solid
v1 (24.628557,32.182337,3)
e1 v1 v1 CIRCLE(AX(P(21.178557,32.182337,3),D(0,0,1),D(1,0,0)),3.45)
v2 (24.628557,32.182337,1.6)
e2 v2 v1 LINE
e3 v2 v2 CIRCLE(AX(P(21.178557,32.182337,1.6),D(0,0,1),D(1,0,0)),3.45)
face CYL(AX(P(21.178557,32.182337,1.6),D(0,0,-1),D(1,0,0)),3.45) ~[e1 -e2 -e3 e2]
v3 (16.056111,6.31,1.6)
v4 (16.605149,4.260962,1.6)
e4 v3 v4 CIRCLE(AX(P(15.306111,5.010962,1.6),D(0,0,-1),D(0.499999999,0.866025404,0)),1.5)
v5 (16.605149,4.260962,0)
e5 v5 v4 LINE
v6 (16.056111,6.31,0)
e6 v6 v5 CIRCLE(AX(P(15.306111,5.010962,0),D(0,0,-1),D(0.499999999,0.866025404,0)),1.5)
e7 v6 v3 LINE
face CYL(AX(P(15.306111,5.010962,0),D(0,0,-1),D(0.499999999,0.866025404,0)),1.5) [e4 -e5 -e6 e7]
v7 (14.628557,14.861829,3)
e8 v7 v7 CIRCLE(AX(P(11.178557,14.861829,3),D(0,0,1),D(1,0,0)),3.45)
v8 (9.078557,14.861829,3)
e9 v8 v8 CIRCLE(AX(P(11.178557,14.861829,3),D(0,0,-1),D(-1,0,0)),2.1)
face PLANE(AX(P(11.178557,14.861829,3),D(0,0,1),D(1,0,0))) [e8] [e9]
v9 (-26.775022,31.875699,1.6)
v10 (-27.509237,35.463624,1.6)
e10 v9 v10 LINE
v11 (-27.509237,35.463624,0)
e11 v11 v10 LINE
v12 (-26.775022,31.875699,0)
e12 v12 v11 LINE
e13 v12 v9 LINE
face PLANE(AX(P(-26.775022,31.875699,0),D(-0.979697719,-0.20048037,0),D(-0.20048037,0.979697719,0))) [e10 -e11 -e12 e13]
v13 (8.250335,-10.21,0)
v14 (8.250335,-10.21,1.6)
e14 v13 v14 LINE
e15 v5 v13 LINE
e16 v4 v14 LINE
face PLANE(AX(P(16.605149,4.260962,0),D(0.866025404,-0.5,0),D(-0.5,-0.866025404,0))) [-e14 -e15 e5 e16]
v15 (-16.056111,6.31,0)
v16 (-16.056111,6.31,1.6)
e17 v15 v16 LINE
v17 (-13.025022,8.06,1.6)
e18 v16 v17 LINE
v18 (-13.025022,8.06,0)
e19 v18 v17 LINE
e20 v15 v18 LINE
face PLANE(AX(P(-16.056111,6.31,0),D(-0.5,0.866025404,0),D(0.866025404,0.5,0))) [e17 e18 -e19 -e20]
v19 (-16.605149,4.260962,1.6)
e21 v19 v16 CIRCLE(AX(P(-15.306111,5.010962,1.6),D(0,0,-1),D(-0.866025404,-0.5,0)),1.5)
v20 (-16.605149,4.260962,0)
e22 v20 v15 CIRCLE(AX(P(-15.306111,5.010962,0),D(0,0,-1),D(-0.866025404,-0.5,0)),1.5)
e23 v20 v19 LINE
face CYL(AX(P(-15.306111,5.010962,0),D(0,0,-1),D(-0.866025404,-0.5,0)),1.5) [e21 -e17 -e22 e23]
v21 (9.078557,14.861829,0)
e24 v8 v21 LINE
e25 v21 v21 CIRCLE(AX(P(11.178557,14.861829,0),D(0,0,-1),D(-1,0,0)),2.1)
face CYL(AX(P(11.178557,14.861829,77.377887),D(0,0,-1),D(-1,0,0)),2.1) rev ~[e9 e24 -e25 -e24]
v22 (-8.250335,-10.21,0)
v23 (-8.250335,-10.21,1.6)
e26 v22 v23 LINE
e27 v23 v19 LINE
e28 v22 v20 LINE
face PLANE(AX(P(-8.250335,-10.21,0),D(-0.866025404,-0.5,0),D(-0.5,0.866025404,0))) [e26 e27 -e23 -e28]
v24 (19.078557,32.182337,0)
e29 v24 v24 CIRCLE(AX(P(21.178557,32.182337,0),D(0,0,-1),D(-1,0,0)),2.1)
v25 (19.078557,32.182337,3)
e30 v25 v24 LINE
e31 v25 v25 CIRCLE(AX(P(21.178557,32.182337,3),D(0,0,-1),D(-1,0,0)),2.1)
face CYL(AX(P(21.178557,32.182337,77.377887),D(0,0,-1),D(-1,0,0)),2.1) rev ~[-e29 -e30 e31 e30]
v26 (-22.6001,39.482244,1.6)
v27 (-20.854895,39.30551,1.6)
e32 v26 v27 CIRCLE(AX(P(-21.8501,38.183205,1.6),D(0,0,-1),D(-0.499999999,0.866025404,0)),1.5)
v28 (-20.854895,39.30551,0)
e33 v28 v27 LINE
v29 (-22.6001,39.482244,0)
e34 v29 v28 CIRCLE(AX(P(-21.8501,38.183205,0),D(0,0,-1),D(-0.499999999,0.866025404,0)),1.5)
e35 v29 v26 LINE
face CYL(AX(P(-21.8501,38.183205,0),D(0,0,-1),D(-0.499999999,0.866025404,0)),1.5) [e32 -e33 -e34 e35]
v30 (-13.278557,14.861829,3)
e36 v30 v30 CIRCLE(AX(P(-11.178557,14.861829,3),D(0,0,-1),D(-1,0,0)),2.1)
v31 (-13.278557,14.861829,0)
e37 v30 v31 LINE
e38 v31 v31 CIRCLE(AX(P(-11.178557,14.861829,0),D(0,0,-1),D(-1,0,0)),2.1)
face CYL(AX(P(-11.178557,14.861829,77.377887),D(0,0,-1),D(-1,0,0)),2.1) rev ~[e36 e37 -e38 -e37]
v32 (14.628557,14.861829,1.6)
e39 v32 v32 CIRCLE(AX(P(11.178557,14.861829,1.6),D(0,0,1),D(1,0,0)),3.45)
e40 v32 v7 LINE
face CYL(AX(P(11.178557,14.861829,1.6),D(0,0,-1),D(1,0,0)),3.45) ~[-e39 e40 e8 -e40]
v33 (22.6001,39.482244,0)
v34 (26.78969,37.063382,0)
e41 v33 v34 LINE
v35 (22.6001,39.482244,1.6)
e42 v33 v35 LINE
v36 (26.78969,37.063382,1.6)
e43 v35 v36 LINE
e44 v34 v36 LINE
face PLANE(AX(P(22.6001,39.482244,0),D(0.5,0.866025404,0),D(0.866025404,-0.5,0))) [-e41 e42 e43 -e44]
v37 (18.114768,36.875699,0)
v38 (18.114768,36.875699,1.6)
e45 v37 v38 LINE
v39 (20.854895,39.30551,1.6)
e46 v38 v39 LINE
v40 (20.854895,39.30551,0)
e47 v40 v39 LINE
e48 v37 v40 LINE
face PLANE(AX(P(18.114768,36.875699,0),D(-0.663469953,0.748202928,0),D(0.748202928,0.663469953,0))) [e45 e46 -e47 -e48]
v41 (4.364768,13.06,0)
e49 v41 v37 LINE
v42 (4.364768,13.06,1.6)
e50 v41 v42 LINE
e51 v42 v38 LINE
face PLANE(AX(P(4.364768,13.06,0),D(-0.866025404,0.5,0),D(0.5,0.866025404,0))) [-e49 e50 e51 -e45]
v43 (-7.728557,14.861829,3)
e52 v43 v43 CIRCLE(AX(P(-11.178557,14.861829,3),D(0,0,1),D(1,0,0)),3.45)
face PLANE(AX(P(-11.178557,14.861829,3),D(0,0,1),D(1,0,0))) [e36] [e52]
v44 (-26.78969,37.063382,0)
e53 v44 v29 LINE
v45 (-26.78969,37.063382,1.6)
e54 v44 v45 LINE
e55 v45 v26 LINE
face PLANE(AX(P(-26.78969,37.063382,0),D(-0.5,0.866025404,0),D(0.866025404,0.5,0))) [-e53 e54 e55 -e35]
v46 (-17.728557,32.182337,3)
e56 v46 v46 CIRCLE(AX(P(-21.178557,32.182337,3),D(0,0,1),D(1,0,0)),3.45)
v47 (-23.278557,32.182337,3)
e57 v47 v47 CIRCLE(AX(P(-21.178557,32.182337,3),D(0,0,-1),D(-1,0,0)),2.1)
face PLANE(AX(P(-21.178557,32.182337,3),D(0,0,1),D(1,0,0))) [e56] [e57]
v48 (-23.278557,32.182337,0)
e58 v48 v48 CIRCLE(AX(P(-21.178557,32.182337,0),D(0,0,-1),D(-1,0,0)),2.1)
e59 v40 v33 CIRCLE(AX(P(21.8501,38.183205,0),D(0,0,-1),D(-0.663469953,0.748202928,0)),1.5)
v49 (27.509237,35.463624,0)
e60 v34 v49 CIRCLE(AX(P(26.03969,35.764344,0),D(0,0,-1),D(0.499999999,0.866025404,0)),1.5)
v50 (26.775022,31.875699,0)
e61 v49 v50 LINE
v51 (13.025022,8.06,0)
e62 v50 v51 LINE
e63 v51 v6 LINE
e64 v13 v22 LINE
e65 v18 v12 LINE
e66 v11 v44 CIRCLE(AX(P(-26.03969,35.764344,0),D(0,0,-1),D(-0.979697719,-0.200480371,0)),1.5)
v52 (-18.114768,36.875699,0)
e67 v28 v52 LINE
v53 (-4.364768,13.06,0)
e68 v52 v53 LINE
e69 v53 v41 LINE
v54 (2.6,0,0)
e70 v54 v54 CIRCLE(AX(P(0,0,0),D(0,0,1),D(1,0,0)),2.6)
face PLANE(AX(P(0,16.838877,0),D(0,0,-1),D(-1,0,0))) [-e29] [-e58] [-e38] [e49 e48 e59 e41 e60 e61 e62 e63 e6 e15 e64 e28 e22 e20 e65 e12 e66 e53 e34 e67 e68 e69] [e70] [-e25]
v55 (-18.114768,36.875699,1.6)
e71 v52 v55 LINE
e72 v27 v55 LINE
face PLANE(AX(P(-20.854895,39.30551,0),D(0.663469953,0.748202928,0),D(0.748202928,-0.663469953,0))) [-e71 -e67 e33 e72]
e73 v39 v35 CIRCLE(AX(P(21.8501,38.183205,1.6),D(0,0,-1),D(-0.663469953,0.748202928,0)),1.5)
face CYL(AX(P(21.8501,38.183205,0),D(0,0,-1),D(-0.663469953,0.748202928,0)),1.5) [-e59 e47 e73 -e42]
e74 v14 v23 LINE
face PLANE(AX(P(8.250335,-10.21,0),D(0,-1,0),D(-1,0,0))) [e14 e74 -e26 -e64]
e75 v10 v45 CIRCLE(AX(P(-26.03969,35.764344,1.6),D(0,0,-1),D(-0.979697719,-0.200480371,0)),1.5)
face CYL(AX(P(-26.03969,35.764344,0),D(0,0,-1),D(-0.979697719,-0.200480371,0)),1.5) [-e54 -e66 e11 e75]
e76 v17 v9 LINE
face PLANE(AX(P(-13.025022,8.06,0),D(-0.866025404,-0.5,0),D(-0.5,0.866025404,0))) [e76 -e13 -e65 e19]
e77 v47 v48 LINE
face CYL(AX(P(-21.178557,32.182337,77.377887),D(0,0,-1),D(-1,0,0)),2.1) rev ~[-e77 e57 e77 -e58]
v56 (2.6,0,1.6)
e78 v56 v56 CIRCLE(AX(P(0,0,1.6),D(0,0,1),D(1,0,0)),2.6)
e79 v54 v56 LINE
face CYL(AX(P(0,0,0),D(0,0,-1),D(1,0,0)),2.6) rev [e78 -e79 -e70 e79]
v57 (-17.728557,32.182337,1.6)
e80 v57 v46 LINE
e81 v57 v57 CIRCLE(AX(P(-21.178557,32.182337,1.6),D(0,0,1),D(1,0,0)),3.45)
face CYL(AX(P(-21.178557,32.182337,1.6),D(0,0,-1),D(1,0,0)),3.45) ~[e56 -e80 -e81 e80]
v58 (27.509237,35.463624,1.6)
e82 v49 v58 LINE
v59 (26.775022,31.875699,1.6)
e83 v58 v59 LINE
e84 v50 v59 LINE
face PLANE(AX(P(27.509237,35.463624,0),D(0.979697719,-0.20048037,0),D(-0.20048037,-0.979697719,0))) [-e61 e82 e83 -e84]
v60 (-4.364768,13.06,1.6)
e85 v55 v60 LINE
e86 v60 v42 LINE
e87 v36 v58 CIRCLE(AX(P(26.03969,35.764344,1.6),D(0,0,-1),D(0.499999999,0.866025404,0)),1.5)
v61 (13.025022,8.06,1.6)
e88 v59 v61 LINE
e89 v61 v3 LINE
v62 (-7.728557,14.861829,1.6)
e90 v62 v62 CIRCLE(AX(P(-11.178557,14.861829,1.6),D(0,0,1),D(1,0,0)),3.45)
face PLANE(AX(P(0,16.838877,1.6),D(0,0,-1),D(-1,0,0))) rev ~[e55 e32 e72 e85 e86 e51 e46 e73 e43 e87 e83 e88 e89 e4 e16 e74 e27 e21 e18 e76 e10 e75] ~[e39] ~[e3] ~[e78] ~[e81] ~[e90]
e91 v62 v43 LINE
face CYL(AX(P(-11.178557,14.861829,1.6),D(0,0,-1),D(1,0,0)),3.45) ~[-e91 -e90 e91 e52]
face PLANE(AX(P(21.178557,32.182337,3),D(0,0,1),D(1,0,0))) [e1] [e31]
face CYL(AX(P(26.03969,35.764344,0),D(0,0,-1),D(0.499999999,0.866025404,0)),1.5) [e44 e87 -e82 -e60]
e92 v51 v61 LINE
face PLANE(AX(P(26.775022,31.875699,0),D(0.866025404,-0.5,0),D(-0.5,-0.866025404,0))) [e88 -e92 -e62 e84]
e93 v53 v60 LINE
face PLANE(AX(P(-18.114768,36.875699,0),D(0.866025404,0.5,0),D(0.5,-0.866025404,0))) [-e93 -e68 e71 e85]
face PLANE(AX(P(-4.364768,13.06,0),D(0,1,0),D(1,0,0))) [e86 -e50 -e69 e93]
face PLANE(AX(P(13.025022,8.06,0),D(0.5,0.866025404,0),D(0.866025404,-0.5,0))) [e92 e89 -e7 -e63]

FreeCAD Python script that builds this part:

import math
import FreeCAD as App
import Part
import Sketcher

V = App.Vector
Q = App.Units.Quantity

doc = App.newDocument("Part")
body = doc.addObject("PartDesign::Body", "Body")

sketch1 = body.newObject("Sketcher::SketchObject", "Sketch")
sketch1.AttachmentSupport = (doc.getObject("XY_Plane"), [""])
sketch1.MapMode = "FlatFace"
sketch1.addGeometry([
    Part.LineSegment(V(4.4, 13.1, 0), V(-4.4, 13.1, 0)),
    Part.LineSegment(V(-4.4, 13.1, 0), V(-18.1, 36.9, 0)),
    Part.LineSegment(V(-18.1, 36.9, 0), V(-20.9, 39.3, 0)),
    Part.ArcOfCircle(Part.Circle(V(-21.9, 38.2, 0), V(0, 0, 1), 1.5), math.radians(48), math.radians(120)),
    Part.LineSegment(V(-22.6, 39.5, 0), V(-26.8, 37.1, 0)),
    Part.ArcOfCircle(Part.Circle(V(-26, 35.8, 0), V(0, 0, 1), 1.5), math.radians(120), math.radians(192)),
    Part.LineSegment(V(-27.5, 35.5, 0), V(-26.8, 31.9, 0)),
    Part.LineSegment(V(-26.8, 31.9, 0), V(-13, 8.1, 0)),
    Part.LineSegment(V(-13, 8.1, 0), V(-16.1, 6.3, 0)),
    Part.ArcOfCircle(Part.Circle(V(-15.3, 5, 0), V(0, 0, 1), 1.5), math.radians(120), math.radians(210)),
    Part.LineSegment(V(-16.6, 4.3, 0), V(-8.3, -10.2, 0)),
    Part.LineSegment(V(-8.3, -10.2, 0), V(8.3, -10.2, 0)),
    Part.LineSegment(V(8.3, -10.2, 0), V(16.6, 4.3, 0)),
    Part.ArcOfCircle(Part.Circle(V(15.3, 5, 0), V(0, 0, 1), 1.5), math.radians(-30), math.radians(60)),
    Part.LineSegment(V(16.1, 6.3, 0), V(13, 8.1, 0)),
    Part.LineSegment(V(13, 8.1, 0), V(26.8, 31.9, 0)),
    Part.LineSegment(V(26.8, 31.9, 0), V(27.5, 35.5, 0)),
    Part.ArcOfCircle(Part.Circle(V(26, 35.8, 0), V(0, 0, 1), 1.5), math.radians(-12), math.radians(60)),
    Part.LineSegment(V(26.8, 37.1, 0), V(22.6, 39.5, 0)),
    Part.ArcOfCircle(Part.Circle(V(21.9, 38.2, 0), V(0, 0, 1), 1.5), math.radians(60), math.radians(132)),
    Part.LineSegment(V(20.9, 39.3, 0), V(18.1, 36.9, 0)),
    Part.LineSegment(V(18.1, 36.9, 0), V(4.4, 13.1, 0)),
    Part.Circle(V(0, 0, 0), V(0, 0, 1), 2.6),
], False)
sketch1.addConstraint([
    Sketcher.Constraint("Coincident", 0, 2, 1, 1),
    Sketcher.Constraint("Coincident", 1, 2, 2, 1),
    Sketcher.Constraint("Tangent", 2, 2, 3, 1),
    Sketcher.Constraint("Tangent", 3, 2, 4, 1),
    Sketcher.Constraint("Tangent", 4, 2, 5, 1),
    Sketcher.Constraint("Tangent", 5, 2, 6, 1),
    Sketcher.Constraint("Coincident", 6, 2, 7, 1),
    Sketcher.Constraint("Coincident", 7, 2, 8, 1),
    Sketcher.Constraint("Tangent", 8, 2, 9, 1),
    Sketcher.Constraint("Tangent", 9, 2, 10, 1),
    Sketcher.Constraint("Coincident", 10, 2, 11, 1),
    Sketcher.Constraint("Coincident", 11, 2, 12, 1),
    Sketcher.Constraint("Tangent", 12, 2, 13, 1),
    Sketcher.Constraint("Tangent", 13, 2, 14, 1),
    Sketcher.Constraint("Coincident", 14, 2, 15, 1),
    Sketcher.Constraint("Coincident", 15, 2, 16, 1),
    Sketcher.Constraint("Tangent", 16, 2, 17, 1),
    Sketcher.Constraint("Tangent", 17, 2, 18, 1),
    Sketcher.Constraint("Tangent", 18, 2, 19, 1),
    Sketcher.Constraint("Tangent", 19, 2, 20, 1),
    Sketcher.Constraint("Coincident", 20, 2, 21, 1),
    Sketcher.Constraint("Coincident", 21, 2, 0, 1),
    Sketcher.Constraint("Horizontal", 0),
    Sketcher.Constraint("Horizontal", 11),
    Sketcher.Constraint("Coincident", 22, 3, -1, 1),
    Sketcher.Constraint("Equal", 3, 5),
    Sketcher.Constraint("Equal", 5, 9),
    Sketcher.Constraint("Equal", 9, 13),
    Sketcher.Constraint("Equal", 13, 17),
    Sketcher.Constraint("Equal", 17, 19),
    Sketcher.Constraint("Symmetric", 9, 3, 13, 3, -2),
    Sketcher.Constraint("Symmetric", 5, 3, 17, 3, -2),
    Sketcher.Constraint("Symmetric", 3, 3, 19, 3, -2),
    Sketcher.Constraint("Symmetric", 7, 2, 14, 2, -2),
    Sketcher.Constraint("Symmetric", 6, 2, 15, 2, -2),
    Sketcher.Constraint("Symmetric", 1, 2, 20, 2, -2),
    Sketcher.Constraint("Perpendicular", 1, 4),
    Sketcher.Constraint("Perpendicular", 4, 7),
    Sketcher.Constraint("Perpendicular", 7, 8),
    Sketcher.Constraint("Perpendicular", 8, 10),
    Sketcher.Constraint("Perpendicular", 12, 14),
    Sketcher.Constraint("Perpendicular", 18, 21),
    Sketcher.Constraint("Equal", 2, 6),
    Sketcher.Constraint("Equal", 1, 7),
    Sketcher.Constraint("Diameter", 22, 5.2),
    Sketcher.Constraint("Radius", 3, 1.5),
    Sketcher.Constraint("Angle", 1, Q("120 deg")),
    Sketcher.Constraint("DistanceY", 7, 2, 0, 2, 5.0),
    Sketcher.Constraint("Distance", 1, 27.5),
    Sketcher.Constraint("Distance", 8, 3.5),
    Sketcher.Constraint("DistanceY", -1, 1, 0, 2, 13.06),
    Sketcher.Constraint("DistanceY", 10, 2, -1, 1, 10.21),
    Sketcher.Constraint("DistanceX", 11, 1, 11, 2, 16.500671),
    Sketcher.Constraint("DistanceX", 3, 3, -1, 1, 21.8501),
    Sketcher.Constraint("DistanceX", 5, 3, 13, 3, 41.345801),
    Sketcher.Constraint("DistanceX", 0, 2, 0, 1, 8.729536),
])
pad1 = body.newObject("PartDesign::Pad", "Pad")
pad1.Profile = sketch1
pad1.Length = 1.6

sketch2 = body.newObject("Sketcher::SketchObject", "Sketch001")
sketch2.AttachmentSupport = (doc.getObject("XY_Plane"), [""])
sketch2.MapMode = "FlatFace"
sketch2.AttachmentOffset = App.Placement(V(0, 0, 1.6), App.Rotation())
sketch2.addGeometry([
    Part.Circle(V(21.2, 32.2, 0), V(0, 0, 1), 3.5),
    Part.Circle(V(11.2, 14.9, 0), V(0, 0, 1), 3.5),
    Part.Circle(V(-11.2, 14.9, 0), V(0, 0, 1), 3.5),
    Part.Circle(V(-21.2, 32.2, 0), V(0, 0, 1), 3.5),
], False)
sketch2.addConstraint([
    Sketcher.Constraint("Equal", 0, 1),
    Sketcher.Constraint("Equal", 1, 2),
    Sketcher.Constraint("Equal", 2, 3),
    Sketcher.Constraint("Symmetric", 1, 3, 2, 3, -2),
    Sketcher.Constraint("Symmetric", 0, 3, 3, 3, -2),
    Sketcher.Constraint("Diameter", 0, 6.9),
    Sketcher.Constraint("DistanceX", 1, 3, 0, 3, 10.0),
    Sketcher.Constraint("DistanceY", -1, 1, 1, 3, 14.861829),
    Sketcher.Constraint("DistanceY", 1, 3, 0, 3, 17.320508),
    Sketcher.Constraint("DistanceX", -1, 1, 0, 3, 21.178557),
])
pad2 = body.newObject("PartDesign::Pad", "Pad001")
pad2.Profile = sketch2
pad2.Length = 1.4

sketch3 = body.newObject("Sketcher::SketchObject", "Sketch002")
sketch3.AttachmentSupport = (doc.getObject("XY_Plane"), [""])
sketch3.MapMode = "FlatFace"
sketch3.AttachmentOffset = App.Placement(V(0, 0, 3), App.Rotation())
sketch3.addGeometry([
    Part.Circle(V(21.2, 32.2, 0), V(0, 0, 1), 2.1),
    Part.Circle(V(11.2, 14.9, 0), V(0, 0, 1), 2.1),
    Part.Circle(V(-11.2, 14.9, 0), V(0, 0, 1), 2.1),
    Part.Circle(V(-21.2, 32.2, 0), V(0, 0, 1), 2.1),
], False)
sketch3.addConstraint([
    Sketcher.Constraint("Equal", 0, 1),
    Sketcher.Constraint("Equal", 1, 2),
    Sketcher.Constraint("Equal", 2, 3),
    Sketcher.Constraint("Symmetric", 1, 3, 2, 3, -2),
    Sketcher.Constraint("Symmetric", 0, 3, 3, 3, -2),
    Sketcher.Constraint("Diameter", 0, 4.2),
    Sketcher.Constraint("DistanceX", 1, 3, 0, 3, 10.0),
    Sketcher.Constraint("DistanceY", -1, 1, 1, 3, 14.861829),
    Sketcher.Constraint("DistanceY", 1, 3, 0, 3, 17.320508),
    Sketcher.Constraint("DistanceX", -1, 1, 0, 3, 21.178557),
])
doc.recompute()
hole = body.newObject("PartDesign::Hole", "Hole")
hole.Profile = sketch3
hole.ThreadType = "None"
hole.Diameter = 4.2
hole.DepthType = "ThroughAll"

doc.recompute()
